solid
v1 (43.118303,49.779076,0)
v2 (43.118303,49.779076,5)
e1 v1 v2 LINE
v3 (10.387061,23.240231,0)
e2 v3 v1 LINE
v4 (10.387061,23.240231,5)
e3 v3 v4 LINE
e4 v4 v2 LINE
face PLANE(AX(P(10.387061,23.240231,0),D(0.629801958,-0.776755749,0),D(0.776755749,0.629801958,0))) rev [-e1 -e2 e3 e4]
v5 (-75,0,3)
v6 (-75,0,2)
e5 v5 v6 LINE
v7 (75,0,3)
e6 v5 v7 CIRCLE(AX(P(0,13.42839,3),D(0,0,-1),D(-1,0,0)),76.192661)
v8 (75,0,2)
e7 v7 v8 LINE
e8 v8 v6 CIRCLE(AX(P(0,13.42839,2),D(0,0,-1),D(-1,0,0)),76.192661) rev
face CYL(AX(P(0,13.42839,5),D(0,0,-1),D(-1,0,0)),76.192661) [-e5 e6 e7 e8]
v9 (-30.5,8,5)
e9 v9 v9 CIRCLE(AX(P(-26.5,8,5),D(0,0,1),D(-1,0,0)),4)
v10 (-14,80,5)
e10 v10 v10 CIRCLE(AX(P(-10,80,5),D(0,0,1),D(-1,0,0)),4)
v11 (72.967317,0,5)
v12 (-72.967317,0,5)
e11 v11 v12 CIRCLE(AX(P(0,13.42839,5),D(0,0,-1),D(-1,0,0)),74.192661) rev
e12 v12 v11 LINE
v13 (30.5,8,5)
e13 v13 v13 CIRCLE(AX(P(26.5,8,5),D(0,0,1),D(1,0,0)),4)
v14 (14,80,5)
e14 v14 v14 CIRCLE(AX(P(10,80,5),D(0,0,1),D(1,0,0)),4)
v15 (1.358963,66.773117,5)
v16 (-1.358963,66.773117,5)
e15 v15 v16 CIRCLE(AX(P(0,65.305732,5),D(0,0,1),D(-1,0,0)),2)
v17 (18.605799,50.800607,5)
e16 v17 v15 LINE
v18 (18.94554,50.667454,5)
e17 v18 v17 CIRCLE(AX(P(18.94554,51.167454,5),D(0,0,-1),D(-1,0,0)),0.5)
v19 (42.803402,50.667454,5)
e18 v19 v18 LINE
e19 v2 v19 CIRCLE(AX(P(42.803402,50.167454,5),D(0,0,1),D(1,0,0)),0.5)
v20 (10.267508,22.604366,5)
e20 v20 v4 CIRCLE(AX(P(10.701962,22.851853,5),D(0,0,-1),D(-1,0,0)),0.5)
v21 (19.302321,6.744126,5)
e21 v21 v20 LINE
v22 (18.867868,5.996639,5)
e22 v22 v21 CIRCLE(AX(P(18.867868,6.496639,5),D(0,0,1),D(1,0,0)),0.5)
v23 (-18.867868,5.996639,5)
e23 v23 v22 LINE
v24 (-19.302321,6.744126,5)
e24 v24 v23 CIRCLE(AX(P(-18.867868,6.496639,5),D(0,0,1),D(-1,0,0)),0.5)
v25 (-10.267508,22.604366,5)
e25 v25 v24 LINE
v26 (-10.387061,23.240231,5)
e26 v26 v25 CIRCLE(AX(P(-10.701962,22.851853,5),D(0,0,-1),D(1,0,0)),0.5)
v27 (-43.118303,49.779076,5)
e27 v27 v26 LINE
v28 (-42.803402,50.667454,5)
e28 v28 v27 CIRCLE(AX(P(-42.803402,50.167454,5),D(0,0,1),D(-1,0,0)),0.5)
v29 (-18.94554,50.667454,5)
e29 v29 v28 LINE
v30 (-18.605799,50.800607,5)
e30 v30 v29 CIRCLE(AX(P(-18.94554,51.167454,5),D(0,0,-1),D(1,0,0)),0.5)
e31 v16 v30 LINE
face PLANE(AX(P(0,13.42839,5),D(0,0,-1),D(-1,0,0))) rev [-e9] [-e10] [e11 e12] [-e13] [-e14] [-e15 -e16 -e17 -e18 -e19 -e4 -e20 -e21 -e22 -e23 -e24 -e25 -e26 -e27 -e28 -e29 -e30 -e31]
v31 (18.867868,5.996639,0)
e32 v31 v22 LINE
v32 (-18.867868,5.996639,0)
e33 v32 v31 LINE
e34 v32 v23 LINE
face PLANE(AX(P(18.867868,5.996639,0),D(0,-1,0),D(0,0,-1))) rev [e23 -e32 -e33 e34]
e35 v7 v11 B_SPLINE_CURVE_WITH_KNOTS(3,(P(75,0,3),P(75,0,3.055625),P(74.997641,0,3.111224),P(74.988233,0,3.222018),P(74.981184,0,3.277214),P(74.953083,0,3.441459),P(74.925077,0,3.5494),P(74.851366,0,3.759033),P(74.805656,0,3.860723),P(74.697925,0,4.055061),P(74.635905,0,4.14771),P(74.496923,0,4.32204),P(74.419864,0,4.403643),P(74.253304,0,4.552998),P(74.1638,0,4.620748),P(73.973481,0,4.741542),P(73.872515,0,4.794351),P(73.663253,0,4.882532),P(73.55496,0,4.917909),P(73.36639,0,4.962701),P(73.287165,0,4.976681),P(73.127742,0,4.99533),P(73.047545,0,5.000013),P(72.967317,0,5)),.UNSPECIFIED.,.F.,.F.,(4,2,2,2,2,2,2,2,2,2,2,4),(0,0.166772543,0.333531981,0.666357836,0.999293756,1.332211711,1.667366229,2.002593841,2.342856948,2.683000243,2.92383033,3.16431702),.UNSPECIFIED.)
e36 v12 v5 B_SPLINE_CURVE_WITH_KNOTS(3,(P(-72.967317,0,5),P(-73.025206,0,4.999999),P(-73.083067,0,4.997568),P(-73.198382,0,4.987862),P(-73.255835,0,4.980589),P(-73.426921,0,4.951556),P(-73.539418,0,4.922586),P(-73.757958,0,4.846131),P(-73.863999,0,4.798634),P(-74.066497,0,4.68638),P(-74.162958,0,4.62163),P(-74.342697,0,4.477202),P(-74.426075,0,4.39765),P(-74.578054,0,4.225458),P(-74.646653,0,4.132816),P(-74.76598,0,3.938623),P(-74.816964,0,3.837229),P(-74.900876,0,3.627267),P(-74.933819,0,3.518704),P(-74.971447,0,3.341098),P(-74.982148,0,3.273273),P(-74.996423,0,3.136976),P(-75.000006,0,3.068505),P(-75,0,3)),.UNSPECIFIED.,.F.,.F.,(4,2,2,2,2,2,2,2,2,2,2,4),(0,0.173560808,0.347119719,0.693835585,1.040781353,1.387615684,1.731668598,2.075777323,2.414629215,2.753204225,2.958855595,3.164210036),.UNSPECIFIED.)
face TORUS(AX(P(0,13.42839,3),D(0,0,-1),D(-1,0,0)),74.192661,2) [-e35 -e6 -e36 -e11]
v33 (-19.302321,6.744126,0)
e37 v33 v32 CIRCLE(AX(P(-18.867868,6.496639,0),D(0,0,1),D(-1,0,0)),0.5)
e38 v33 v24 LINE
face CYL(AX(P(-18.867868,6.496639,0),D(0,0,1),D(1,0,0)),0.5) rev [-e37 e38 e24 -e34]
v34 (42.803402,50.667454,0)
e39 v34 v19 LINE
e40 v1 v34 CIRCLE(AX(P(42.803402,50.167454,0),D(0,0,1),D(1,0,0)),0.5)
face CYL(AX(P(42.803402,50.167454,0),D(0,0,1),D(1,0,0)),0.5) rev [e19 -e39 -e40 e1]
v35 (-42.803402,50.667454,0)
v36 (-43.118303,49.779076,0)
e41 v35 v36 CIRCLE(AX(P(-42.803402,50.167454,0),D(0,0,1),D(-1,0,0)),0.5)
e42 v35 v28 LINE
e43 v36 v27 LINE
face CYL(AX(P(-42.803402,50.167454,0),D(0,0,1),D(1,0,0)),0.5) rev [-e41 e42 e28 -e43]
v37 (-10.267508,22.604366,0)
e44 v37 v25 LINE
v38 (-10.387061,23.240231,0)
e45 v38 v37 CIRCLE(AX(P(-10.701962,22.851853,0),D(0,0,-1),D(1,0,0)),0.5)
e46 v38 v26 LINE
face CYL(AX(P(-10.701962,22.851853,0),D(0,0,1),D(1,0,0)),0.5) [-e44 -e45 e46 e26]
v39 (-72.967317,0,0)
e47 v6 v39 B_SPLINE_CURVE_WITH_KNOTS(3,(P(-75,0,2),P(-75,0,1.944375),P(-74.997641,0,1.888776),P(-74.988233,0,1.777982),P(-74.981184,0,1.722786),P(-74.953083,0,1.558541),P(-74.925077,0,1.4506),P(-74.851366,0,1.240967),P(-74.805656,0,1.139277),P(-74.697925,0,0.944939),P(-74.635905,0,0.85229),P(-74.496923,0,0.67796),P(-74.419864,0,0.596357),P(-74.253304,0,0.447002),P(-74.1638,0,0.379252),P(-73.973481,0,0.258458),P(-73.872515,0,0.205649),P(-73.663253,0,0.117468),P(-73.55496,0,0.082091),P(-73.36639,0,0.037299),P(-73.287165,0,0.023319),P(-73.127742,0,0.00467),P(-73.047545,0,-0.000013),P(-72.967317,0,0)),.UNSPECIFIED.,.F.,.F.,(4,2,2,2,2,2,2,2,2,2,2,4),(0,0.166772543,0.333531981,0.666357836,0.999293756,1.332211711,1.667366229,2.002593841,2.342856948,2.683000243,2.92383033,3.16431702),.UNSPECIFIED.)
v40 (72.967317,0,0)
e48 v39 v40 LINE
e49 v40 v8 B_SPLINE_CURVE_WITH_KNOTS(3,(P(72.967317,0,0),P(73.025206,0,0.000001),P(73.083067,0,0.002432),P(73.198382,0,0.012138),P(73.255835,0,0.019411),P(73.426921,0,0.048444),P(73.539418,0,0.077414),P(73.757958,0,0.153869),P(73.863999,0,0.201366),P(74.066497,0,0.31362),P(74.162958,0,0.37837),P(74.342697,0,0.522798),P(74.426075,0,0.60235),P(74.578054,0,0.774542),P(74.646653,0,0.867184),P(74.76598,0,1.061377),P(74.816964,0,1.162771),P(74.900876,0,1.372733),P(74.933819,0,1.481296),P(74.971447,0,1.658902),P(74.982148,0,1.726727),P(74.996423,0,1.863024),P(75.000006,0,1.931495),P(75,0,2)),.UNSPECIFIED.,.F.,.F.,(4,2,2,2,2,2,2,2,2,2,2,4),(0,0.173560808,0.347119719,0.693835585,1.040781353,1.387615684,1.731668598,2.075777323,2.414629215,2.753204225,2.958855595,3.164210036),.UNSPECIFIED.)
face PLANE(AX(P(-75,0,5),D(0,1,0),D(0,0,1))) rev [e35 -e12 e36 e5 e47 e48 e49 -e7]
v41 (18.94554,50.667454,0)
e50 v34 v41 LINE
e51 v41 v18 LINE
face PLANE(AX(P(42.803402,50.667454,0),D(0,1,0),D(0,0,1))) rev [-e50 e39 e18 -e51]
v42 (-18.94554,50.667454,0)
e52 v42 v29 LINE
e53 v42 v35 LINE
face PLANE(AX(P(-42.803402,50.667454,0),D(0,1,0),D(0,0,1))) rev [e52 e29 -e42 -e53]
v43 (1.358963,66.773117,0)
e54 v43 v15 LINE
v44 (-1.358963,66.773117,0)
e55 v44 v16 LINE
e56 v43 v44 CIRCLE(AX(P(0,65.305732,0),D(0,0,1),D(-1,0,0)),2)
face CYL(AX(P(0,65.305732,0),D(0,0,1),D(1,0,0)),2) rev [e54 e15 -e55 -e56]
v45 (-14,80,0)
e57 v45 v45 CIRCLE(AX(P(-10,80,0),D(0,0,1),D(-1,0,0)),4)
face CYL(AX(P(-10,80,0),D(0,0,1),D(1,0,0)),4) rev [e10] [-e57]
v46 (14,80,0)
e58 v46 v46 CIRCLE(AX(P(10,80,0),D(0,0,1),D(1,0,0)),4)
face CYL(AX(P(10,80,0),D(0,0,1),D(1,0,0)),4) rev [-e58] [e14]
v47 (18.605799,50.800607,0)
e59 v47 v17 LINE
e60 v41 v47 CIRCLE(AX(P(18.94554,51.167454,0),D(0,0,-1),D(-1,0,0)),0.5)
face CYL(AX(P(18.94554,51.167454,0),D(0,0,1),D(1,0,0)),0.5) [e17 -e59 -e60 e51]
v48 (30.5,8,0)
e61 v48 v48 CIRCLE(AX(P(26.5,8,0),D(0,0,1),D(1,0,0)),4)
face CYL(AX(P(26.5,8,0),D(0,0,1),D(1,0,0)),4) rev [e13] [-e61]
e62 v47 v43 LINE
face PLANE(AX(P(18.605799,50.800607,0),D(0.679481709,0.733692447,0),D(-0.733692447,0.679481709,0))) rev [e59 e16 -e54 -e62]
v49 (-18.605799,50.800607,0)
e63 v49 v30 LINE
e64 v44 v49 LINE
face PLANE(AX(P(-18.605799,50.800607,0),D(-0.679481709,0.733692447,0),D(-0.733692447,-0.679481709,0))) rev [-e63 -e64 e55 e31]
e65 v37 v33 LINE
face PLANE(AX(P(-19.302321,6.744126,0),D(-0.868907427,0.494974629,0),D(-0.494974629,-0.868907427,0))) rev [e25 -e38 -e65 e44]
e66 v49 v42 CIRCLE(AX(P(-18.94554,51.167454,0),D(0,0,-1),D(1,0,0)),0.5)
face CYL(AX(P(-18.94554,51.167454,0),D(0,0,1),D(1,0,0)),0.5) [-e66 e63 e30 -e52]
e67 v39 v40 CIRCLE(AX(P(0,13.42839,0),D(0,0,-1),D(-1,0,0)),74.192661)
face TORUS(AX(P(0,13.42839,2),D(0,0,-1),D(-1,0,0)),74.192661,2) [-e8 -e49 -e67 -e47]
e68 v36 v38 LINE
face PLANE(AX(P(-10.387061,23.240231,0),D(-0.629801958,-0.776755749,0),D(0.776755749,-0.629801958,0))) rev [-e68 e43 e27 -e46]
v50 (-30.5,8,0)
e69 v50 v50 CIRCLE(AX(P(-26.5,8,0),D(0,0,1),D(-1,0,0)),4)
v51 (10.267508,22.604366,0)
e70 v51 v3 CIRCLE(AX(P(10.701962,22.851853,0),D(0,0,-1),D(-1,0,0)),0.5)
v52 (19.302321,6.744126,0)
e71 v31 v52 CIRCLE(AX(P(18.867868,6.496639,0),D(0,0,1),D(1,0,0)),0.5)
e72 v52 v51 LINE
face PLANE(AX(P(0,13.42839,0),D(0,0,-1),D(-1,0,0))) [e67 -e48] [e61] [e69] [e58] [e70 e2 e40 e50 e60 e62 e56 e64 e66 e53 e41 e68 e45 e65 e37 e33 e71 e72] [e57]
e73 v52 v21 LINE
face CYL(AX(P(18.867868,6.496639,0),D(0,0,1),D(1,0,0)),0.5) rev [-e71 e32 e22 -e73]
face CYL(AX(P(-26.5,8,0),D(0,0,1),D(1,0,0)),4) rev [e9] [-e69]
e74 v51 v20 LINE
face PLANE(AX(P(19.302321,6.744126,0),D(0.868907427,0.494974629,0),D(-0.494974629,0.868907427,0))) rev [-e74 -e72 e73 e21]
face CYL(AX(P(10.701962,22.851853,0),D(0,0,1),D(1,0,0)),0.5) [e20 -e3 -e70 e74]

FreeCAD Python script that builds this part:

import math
import FreeCAD as App
import Part
import Sketcher
from FreeCAD import Vector
Q = App.Units.Quantity


def edges_at(feature, points):
    """Names of the edges that pass closest to the given points."""
    edges = feature.Shape.Edges
    near = lambda p: min(range(len(edges)), key=lambda i: edges[i].distToShape(Part.Vertex(*p))[0])
    return sorted({f"Edge{near(p) + 1}" for p in points})

doc = App.newDocument("Part")
params = doc.addObject("Spreadsheet::Sheet", "Params")
for row, (alias, value) in enumerate([
    ("sketch1_width", "150 mm"),
    ("pad1_length", "5 mm"),
    ("sketch2_diameter", "8 mm"),
    ("pocket1_length", "5 mm"),
    ("sketch3_radius", "2 mm"),
    ("sketch3_radius2", "0.5 mm"),
    ("pocket2_length", "5 mm"),
    ("fillet_radius", "2 mm"),
], start=1):
    params.set(f"A{row}", alias)
    params.set(f"B{row}", "=" + value)
    params.setAlias(f"B{row}", alias)

body = doc.addObject("PartDesign::Body", "Body")

# Sketch on XY plane
sketch1 = body.newObject("Sketcher::SketchObject", "Sketch")
sketch1.AttachmentSupport = (doc.getObject("XY_Plane"), [""])
sketch1.MapMode = "FlatFace"
sketch1.addGeometry(Part.LineSegment(Vector(-75, 0, 0), Vector(75, 0, 0)), False)
sketch1.addGeometry(Part.ArcOfCircle(Part.Circle(Vector(0, 13, 0), Vector(0, 0, 1), 76), math.radians(-10), math.radians(190)), False)
sketch1.addConstraint(Sketcher.Constraint("Coincident", 0, 1, 1, 2))
sketch1.addConstraint(Sketcher.Constraint("Coincident", 1, 1, 0, 2))
sketch1.addConstraint(Sketcher.Constraint("Horizontal", 0))
sketch1.addConstraint(Sketcher.Constraint("Symmetric", 0, 1, 1, 1, -1, 1))
sketch1.addConstraint(Sketcher.Constraint("DistanceX", 0, 1, 0, 2, Q("150 mm")))
sketch1.addConstraint(Sketcher.Constraint("Radius", 1, Q("76.192661 mm")))
sketch1.setExpression("Constraints[4]", "Params.sketch1_width")
pad1 = body.newObject("PartDesign::Pad", "Pad")
pad1.Profile = sketch1
pad1.setExpression("Length", "Params.pad1_length")

# Sketch on XY plane
sketch2 = body.newObject("Sketcher::SketchObject", "Sketch001")
sketch2.AttachmentSupport = (doc.getObject("XY_Plane"), [""])
sketch2.MapMode = "FlatFace"
sketch2.AttachmentOffset = App.Placement(Vector(0, 0, 5), App.Rotation())
sketch2.addGeometry(Part.Circle(Vector(26.5, 8, 0), Vector(0, 0, 1), 4), False)
sketch2.addGeometry(Part.Circle(Vector(10, 80, 0), Vector(0, 0, 1), 4), False)
sketch2.addGeometry(Part.Circle(Vector(-10, 80, 0), Vector(0, 0, 1), 4), False)
sketch2.addGeometry(Part.Circle(Vector(-26.5, 8, 0), Vector(0, 0, 1), 4), False)
sketch2.addConstraint(Sketcher.Constraint("Equal", 0, 1))
sketch2.addConstraint(Sketcher.Constraint("Equal", 1, 2))
sketch2.addConstraint(Sketcher.Constraint("Equal", 2, 3))
sketch2.addConstraint(Sketcher.Constraint("Symmetric", 1, 3, 2, 3, -2))
sketch2.addConstraint(Sketcher.Constraint("Symmetric", 0, 3, 3, 3, -2))
sketch2.addConstraint(Sketcher.Constraint("Diameter", 0, Q("8 mm")))
sketch2.addConstraint(Sketcher.Constraint("DistanceY", -1, 1, 0, 3, Q("8 mm")))
sketch2.addConstraint(Sketcher.Constraint("DistanceX", -1, 1, 1, 3, Q("10 mm")))
sketch2.addConstraint(Sketcher.Constraint("DistanceY", -1, 1, 1, 3, Q("80 mm")))
sketch2.addConstraint(Sketcher.Constraint("DistanceX", 3, 3, 0, 3, Q("53 mm")))
sketch2.setExpression("Constraints[5]", "Params.sketch2_diameter")
pocket1 = body.newObject("PartDesign::Pocket", "Pocket")
pocket1.Profile = sketch2
pocket1.setExpression("Length", "Params.pocket1_length")

# Sketch on XY plane
sketch3 = body.newObject("Sketcher::SketchObject", "Sketch002")
sketch3.AttachmentSupport = (doc.getObject("XY_Plane"), [""])
sketch3.MapMode = "FlatFace"
sketch3.AttachmentOffset = App.Placement(Vector(0, 0, 5), App.Rotation())
sketch3.addGeometry(Part.LineSegment(Vector(-18.87, 6, 0), Vector(18.87, 6, 0)), False)
sketch3.addGeometry(Part.ArcOfCircle(Part.Circle(Vector(18.87, 6.5, 0), Vector(0, 0, 1), 0.5), math.radians(-90), math.radians(30)), False)
sketch3.addGeometry(Part.LineSegment(Vector(19.3, 6.74, 0), Vector(10.27, 22.6, 0)), False)
sketch3.addGeometry(Part.ArcOfCircle(Part.Circle(Vector(10.7, 22.85, 0), Vector(0, 0, 1), 0.5), math.radians(129), math.radians(210)), False)
sketch3.addGeometry(Part.LineSegment(Vector(10.39, 23.24, 0), Vector(43.12, 49.78, 0)), False)
sketch3.addGeometry(Part.ArcOfCircle(Part.Circle(Vector(42.8, 50.17, 0), Vector(0, 0, 1), 0.5), math.radians(-51), math.radians(90)), False)
sketch3.addGeometry(Part.LineSegment(Vector(42.8, 50.67, 0), Vector(18.95, 50.67, 0)), False)
sketch3.addGeometry(Part.ArcOfCircle(Part.Circle(Vector(18.95, 51.17, 0), Vector(0, 0, 1), 0.5), math.radians(-133), math.radians(-90)), False)
sketch3.addGeometry(Part.LineSegment(Vector(18.61, 50.8, 0), Vector(1.36, 66.77, 0)), False)
sketch3.addGeometry(Part.ArcOfCircle(Part.Circle(Vector(0, 65.31, 0), Vector(0, 0, 1), 2), math.radians(47), math.radians(133)), False)
sketch3.addGeometry(Part.LineSegment(Vector(-1.36, 66.77, 0), Vector(-18.61, 50.8, 0)), False)
sketch3.addGeometry(Part.ArcOfCircle(Part.Circle(Vector(-18.95, 51.17, 0), Vector(0, 0, 1), 0.5), math.radians(-90), math.radians(-47)), False)
sketch3.addGeometry(Part.LineSegment(Vector(-18.95, 50.67, 0), Vector(-42.8, 50.67, 0)), False)
sketch3.addGeometry(Part.ArcOfCircle(Part.Circle(Vector(-42.8, 50.17, 0), Vector(0, 0, 1), 0.5), math.radians(90), math.radians(231)), False)
sketch3.addGeometry(Part.LineSegment(Vector(-43.12, 49.78, 0), Vector(-10.39, 23.24, 0)), False)
sketch3.addGeometry(Part.ArcOfCircle(Part.Circle(Vector(-10.7, 22.85, 0), Vector(0, 0, 1), 0.5), math.radians(-30), math.radians(51)), False)
sketch3.addGeometry(Part.LineSegment(Vector(-10.27, 22.6, 0), Vector(-19.3, 6.74, 0)), False)
sketch3.addGeometry(Part.ArcOfCircle(Part.Circle(Vector(-18.87, 6.5, 0), Vector(0, 0, 1), 0.5), math.radians(150), math.radians(270)), False)
sketch3.addConstraint(Sketcher.Constraint("Tangent", 0, 2, 1, 1))
sketch3.addConstraint(Sketcher.Constraint("Tangent", 1, 2, 2, 1))
sketch3.addConstraint(Sketcher.Constraint("Tangent", 2, 2, 3, 2))
sketch3.addConstraint(Sketcher.Constraint("Tangent", 3, 1, 4, 1))
sketch3.addConstraint(Sketcher.Constraint("Tangent", 4, 2, 5, 1))
sketch3.addConstraint(Sketcher.Constraint("Tangent", 5, 2, 6, 1))
sketch3.addConstraint(Sketcher.Constraint("Tangent", 6, 2, 7, 2))
sketch3.addConstraint(Sketcher.Constraint("Tangent", 7, 1, 8, 1))
sketch3.addConstraint(Sketcher.Constraint("Tangent", 8, 2, 9, 1))
sketch3.addConstraint(Sketcher.Constraint("Tangent", 9, 2, 10, 1))
sketch3.addConstraint(Sketcher.Constraint("Tangent", 10, 2, 11, 2))
sketch3.addConstraint(Sketcher.Constraint("Tangent", 11, 1, 12, 1))
sketch3.addConstraint(Sketcher.Constraint("Tangent", 12, 2, 13, 1))
sketch3.addConstraint(Sketcher.Constraint("Tangent", 13, 2, 14, 1))
sketch3.addConstraint(Sketcher.Constraint("Tangent", 14, 2, 15, 2))
sketch3.addConstraint(Sketcher.Constraint("Tangent", 15, 1, 16, 1))
sketch3.addConstraint(Sketcher.Constraint("Tangent", 16, 2, 17, 1))
sketch3.addConstraint(Sketcher.Constraint("Tangent", 17, 2, 0, 1))
sketch3.addConstraint(Sketcher.Constraint("Horizontal", 0))
sketch3.addConstraint(Sketcher.Constraint("Horizontal", 6))
sketch3.addConstraint(Sketcher.Constraint("Horizontal", 12))
sketch3.addConstraint(Sketcher.Constraint("Equal", 1, 3))
sketch3.addConstraint(Sketcher.Constraint("Equal", 3, 5))
sketch3.addConstraint(Sketcher.Constraint("Equal", 5, 7))
sketch3.addConstraint(Sketcher.Constraint("Equal", 7, 11))
sketch3.addConstraint(Sketcher.Constraint("Equal", 11, 13))
sketch3.addConstraint(Sketcher.Constraint("Equal", 13, 15))
sketch3.addConstraint(Sketcher.Constraint("Equal", 15, 17))
sketch3.addConstraint(Sketcher.Constraint("Symmetric", 7, 3, 11, 3, -2))
sketch3.addConstraint(Sketcher.Constraint("Symmetric", 3, 3, 15, 3, -2))
sketch3.addConstraint(Sketcher.Constraint("PointOnObject", 9, 3, -2))
sketch3.addConstraint(Sketcher.Constraint("Horizontal", 4, 2, 13, 2))
sketch3.addConstraint(Sketcher.Constraint("Horizontal", 2, 2, 15, 1))
sketch3.addConstraint(Sketcher.Constraint("Radius", 9, Q("2 mm")))
sketch3.addConstraint(Sketcher.Constraint("Radius", 1, Q("0.5 mm")))
sketch3.addConstraint(Sketcher.Constraint("Distance", 8, Q("23.506901 mm")))
sketch3.addConstraint(Sketcher.Constraint("DistanceX", 6, 2, 6, 1, Q("23.857862 mm")))
sketch3.addConstraint(Sketcher.Constraint("DistanceX", -1, 1, 5, 3, Q("42.803402 mm")))
sketch3.addConstraint(Sketcher.Constraint("DistanceY", 3, 3, 5, 3, Q("27.3156 mm")))
sketch3.addConstraint(Sketcher.Constraint("DistanceX", 3, 1, 3, 3, Q("0.314901 mm")))
sketch3.addConstraint(Sketcher.Constraint("DistanceX", 0, 1, 0, 2, Q("37.735735 mm")))
sketch3.addConstraint(Sketcher.Constraint("DistanceY", -1, 1, 1, 3, Q("6.496639 mm")))
sketch3.addConstraint(Sketcher.Constraint("DistanceY", -1, 1, 9, 3, Q("65.305732 mm")))
sketch3.setExpression("Constraints[33]", "Params.sketch3_radius")
sketch3.setExpression("Constraints[34]", "Params.sketch3_radius2")
pocket2 = body.newObject("PartDesign::Pocket", "Pocket001")
pocket2.Profile = sketch3
pocket2.setExpression("Length", "Params.pocket2_length")
doc.recompute()

fillet = body.newObject("PartDesign::Fillet", "Fillet")
fillet.Base = (pocket2, edges_at(pocket2, [(0, 89.621, 0), (0, 89.621, 5)]))
fillet.setExpression("Radius", "Params.fillet_radius")

doc.recompute()
